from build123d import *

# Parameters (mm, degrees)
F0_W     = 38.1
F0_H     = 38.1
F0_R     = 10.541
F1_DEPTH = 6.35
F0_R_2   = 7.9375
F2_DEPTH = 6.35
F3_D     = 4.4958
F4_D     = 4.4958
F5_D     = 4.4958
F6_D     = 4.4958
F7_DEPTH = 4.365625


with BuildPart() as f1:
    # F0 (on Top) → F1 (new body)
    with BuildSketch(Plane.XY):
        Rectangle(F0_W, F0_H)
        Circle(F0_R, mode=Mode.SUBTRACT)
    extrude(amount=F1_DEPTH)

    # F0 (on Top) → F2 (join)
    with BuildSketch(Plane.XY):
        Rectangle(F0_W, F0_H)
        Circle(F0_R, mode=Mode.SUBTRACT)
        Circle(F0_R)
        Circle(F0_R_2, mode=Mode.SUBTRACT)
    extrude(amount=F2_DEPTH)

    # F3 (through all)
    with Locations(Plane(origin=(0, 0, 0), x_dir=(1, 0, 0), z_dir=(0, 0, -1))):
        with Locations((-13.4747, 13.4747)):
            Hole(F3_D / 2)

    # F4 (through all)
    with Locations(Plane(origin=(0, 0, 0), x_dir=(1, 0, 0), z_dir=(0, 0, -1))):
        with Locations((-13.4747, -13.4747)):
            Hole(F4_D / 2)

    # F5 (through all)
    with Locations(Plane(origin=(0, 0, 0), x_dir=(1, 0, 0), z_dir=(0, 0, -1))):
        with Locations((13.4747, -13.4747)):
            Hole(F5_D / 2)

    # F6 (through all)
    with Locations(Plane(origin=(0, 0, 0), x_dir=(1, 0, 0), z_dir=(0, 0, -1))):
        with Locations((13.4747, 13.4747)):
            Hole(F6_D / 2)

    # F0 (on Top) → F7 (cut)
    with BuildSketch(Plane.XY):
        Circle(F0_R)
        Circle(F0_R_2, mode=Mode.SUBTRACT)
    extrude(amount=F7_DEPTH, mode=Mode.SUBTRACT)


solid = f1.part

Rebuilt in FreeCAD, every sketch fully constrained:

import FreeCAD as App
import Part
import Sketcher
Q = App.Units.Quantity

doc = App.newDocument("Part")
body = doc.addObject("PartDesign::Body", "Body")

# Sketch on XY plane
sketch1 = body.newObject("Sketcher::SketchObject", "Sketch")
sketch1.AttachmentSupport = (doc.getObject("XY_Plane"), [""])
sketch1.MapMode = "FlatFace"
sketch1.addGeometry([
    Part.LineSegment(App.Vector(-19, 19, 0), App.Vector(-19, -19, 0)),  # 0
    Part.LineSegment(App.Vector(-19, -19, 0), App.Vector(19, -19, 0)),  # 1
    Part.LineSegment(App.Vector(19, -19, 0), App.Vector(19, 19, 0)),  # 2
    Part.LineSegment(App.Vector(19, 19, 0), App.Vector(-19, 19, 0)),  # 3
    Part.Circle(App.Vector(0, 0, 0), App.Vector(0, 0, 1), 11),  # 4
], False)
sketch1.addConstraint([
    Sketcher.Constraint("Coincident", 0, 2, 1, 1),
    Sketcher.Constraint("Coincident", 1, 2, 2, 1),
    Sketcher.Constraint("Coincident", 2, 2, 3, 1),
    Sketcher.Constraint("Coincident", 3, 2, 0, 1),
    Sketcher.Constraint("Vertical", 0),
    Sketcher.Constraint("Horizontal", 1),
    Sketcher.Constraint("Vertical", 2),
    Sketcher.Constraint("Horizontal", 3),
    Sketcher.Constraint("Coincident", 4, 3, -1, 1),
    Sketcher.Constraint("Symmetric", 0, 2, 2, 2, -1, 1),
    Sketcher.Constraint("Equal", 3, 0),
    Sketcher.Constraint("Diameter", 4, Q("0.83 in")),
    Sketcher.Constraint("DistanceX", 1, 1, 1, 2, Q("1.5 in")),
])
pad1 = body.newObject("PartDesign::Pad", "Pad")
pad1.Profile = sketch1
pad1.Length = Q("0.25 in")

# Sketch on XY plane
sketch2 = body.newObject("Sketcher::SketchObject", "Sketch001")
sketch2.AttachmentSupport = (doc.getObject("XY_Plane"), [""])
sketch2.MapMode = "FlatFace"
sketch2.addGeometry([
    Part.LineSegment(App.Vector(-19, 19, 0), App.Vector(-19, -19, 0)),  # 0
    Part.LineSegment(App.Vector(-19, -19, 0), App.Vector(19, -19, 0)),  # 1
    Part.LineSegment(App.Vector(19, -19, 0), App.Vector(19, 19, 0)),  # 2
    Part.LineSegment(App.Vector(19, 19, 0), App.Vector(-19, 19, 0)),  # 3
    Part.Circle(App.Vector(0, 0, 0), App.Vector(0, 0, 1), 8),  # 4
], False)
sketch2.addConstraint([
    Sketcher.Constraint("Coincident", 0, 2, 1, 1),
    Sketcher.Constraint("Coincident", 1, 2, 2, 1),
    Sketcher.Constraint("Coincident", 2, 2, 3, 1),
    Sketcher.Constraint("Coincident", 3, 2, 0, 1),
    Sketcher.Constraint("Vertical", 0),
    Sketcher.Constraint("Horizontal", 1),
    Sketcher.Constraint("Vertical", 2),
    Sketcher.Constraint("Horizontal", 3),
    Sketcher.Constraint("Coincident", 4, 3, -1, 1),
    Sketcher.Constraint("Symmetric", 0, 2, 2, 2, -1, 1),
    Sketcher.Constraint("Equal", 3, 0),
    Sketcher.Constraint("Diameter", 4, Q("0.625 in")),
    Sketcher.Constraint("DistanceX", 1, 1, 1, 2, Q("1.5 in")),
])
pad2 = body.newObject("PartDesign::Pad", "Pad001")
pad2.Profile = sketch2
pad2.Length = Q("0.25 in")

# Sketch on XY plane
sketch3 = body.newObject("Sketcher::SketchObject", "Sketch002")
sketch3.AttachmentSupport = (doc.getObject("XY_Plane"), [""])
sketch3.MapMode = "FlatFace"
sketch3.addGeometry(Part.Circle(App.Vector(-13.5, -13.5, 0), App.Vector(0, 0, 1), 2.2), False)
sketch3.addConstraint([
    Sketcher.Constraint("Diameter", 0, Q("0.177 in")),
    Sketcher.Constraint("DistanceX", 0, 3, -1, 1, Q("0.5305 in")),
    Sketcher.Constraint("DistanceY", 0, 3, -1, 1, Q("0.5305 in")),
])
doc.recompute()
hole = body.newObject("PartDesign::Hole", "Hole")
hole.Profile = sketch3
hole.ThreadType = "None"
hole.Diameter = Q("0.177 in")
hole.DepthType = "ThroughAll"
hole.Reversed = True

# Sketch on XY plane
sketch4 = body.newObject("Sketcher::SketchObject", "Sketch003")
sketch4.AttachmentSupport = (doc.getObject("XY_Plane"), [""])
sketch4.MapMode = "FlatFace"
sketch4.addGeometry(Part.Circle(App.Vector(-13.5, 13.5, 0), App.Vector(0, 0, 1), 2.2), False)
sketch4.addConstraint([
    Sketcher.Constraint("Diameter", 0, Q("0.177 in")),
    Sketcher.Constraint("DistanceX", 0, 3, -1, 1, Q("0.5305 in")),
    Sketcher.Constraint("DistanceY", -1, 1, 0, 3, Q("0.5305 in")),
])
doc.recompute()
hole2 = body.newObject("PartDesign::Hole", "Hole001")
hole2.Profile = sketch4
hole2.ThreadType = "None"
hole2.Diameter = Q("0.177 in")
hole2.DepthType = "ThroughAll"
hole2.Reversed = True

# Sketch on XY plane
sketch5 = body.newObject("Sketcher::SketchObject", "Sketch004")
sketch5.AttachmentSupport = (doc.getObject("XY_Plane"), [""])
sketch5.MapMode = "FlatFace"
sketch5.addGeometry(Part.Circle(App.Vector(13.5, 13.5, 0), App.Vector(0, 0, 1), 2.2), False)
sketch5.addConstraint([
    Sketcher.Constraint("Diameter", 0, Q("0.177 in")),
    Sketcher.Constraint("DistanceX", -1, 1, 0, 3, Q("0.5305 in")),
    Sketcher.Constraint("DistanceY", -1, 1, 0, 3, Q("0.5305 in")),
])
doc.recompute()
hole3 = body.newObject("PartDesign::Hole", "Hole002")
hole3.Profile = sketch5
hole3.ThreadType = "None"
hole3.Diameter = Q("0.177 in")
hole3.DepthType = "ThroughAll"
hole3.Reversed = True

# Sketch on XY plane
sketch6 = body.newObject("Sketcher::SketchObject", "Sketch005")
sketch6.AttachmentSupport = (doc.getObject("XY_Plane"), [""])
sketch6.MapMode = "FlatFace"
sketch6.addGeometry(Part.Circle(App.Vector(13.5, -13.5, 0), App.Vector(0, 0, 1), 2.2), False)
sketch6.addConstraint([
    Sketcher.Constraint("Diameter", 0, Q("0.177 in")),
    Sketcher.Constraint("DistanceX", -1, 1, 0, 3, Q("0.5305 in")),
    Sketcher.Constraint("DistanceY", 0, 3, -1, 1, Q("0.5305 in")),
])
doc.recompute()
hole4 = body.newObject("PartDesign::Hole", "Hole003")
hole4.Profile = sketch6
hole4.ThreadType = "None"
hole4.Diameter = Q("0.177 in")
hole4.DepthType = "ThroughAll"
hole4.Reversed = True

# Sketch on XY plane
sketch7 = body.newObject("Sketcher::SketchObject", "Sketch006")
sketch7.AttachmentSupport = (doc.getObject("XY_Plane"), [""])
sketch7.MapMode = "FlatFace"
sketch7.addGeometry([
    Part.Circle(App.Vector(0, 0, 0), App.Vector(0, 0, 1), 11),
    Part.Circle(App.Vector(0, 0, 0), App.Vector(0, 0, 1), 8),
], False)
sketch7.addConstraint([
    Sketcher.Constraint("Coincident", 0, 3, -1, 1),
    Sketcher.Constraint("Coincident", 1, 3, -1, 1),
    Sketcher.Constraint("Diameter", 0, Q("0.83 in")),
    Sketcher.Constraint("Diameter", 1, Q("0.625 in")),
])
pocket1 = body.newObject("PartDesign::Pocket", "Pocket")
pocket1.Profile = sketch7
pocket1.Length = Q("0.171875 in")
pocket1.Reversed = True

doc.recompute()
